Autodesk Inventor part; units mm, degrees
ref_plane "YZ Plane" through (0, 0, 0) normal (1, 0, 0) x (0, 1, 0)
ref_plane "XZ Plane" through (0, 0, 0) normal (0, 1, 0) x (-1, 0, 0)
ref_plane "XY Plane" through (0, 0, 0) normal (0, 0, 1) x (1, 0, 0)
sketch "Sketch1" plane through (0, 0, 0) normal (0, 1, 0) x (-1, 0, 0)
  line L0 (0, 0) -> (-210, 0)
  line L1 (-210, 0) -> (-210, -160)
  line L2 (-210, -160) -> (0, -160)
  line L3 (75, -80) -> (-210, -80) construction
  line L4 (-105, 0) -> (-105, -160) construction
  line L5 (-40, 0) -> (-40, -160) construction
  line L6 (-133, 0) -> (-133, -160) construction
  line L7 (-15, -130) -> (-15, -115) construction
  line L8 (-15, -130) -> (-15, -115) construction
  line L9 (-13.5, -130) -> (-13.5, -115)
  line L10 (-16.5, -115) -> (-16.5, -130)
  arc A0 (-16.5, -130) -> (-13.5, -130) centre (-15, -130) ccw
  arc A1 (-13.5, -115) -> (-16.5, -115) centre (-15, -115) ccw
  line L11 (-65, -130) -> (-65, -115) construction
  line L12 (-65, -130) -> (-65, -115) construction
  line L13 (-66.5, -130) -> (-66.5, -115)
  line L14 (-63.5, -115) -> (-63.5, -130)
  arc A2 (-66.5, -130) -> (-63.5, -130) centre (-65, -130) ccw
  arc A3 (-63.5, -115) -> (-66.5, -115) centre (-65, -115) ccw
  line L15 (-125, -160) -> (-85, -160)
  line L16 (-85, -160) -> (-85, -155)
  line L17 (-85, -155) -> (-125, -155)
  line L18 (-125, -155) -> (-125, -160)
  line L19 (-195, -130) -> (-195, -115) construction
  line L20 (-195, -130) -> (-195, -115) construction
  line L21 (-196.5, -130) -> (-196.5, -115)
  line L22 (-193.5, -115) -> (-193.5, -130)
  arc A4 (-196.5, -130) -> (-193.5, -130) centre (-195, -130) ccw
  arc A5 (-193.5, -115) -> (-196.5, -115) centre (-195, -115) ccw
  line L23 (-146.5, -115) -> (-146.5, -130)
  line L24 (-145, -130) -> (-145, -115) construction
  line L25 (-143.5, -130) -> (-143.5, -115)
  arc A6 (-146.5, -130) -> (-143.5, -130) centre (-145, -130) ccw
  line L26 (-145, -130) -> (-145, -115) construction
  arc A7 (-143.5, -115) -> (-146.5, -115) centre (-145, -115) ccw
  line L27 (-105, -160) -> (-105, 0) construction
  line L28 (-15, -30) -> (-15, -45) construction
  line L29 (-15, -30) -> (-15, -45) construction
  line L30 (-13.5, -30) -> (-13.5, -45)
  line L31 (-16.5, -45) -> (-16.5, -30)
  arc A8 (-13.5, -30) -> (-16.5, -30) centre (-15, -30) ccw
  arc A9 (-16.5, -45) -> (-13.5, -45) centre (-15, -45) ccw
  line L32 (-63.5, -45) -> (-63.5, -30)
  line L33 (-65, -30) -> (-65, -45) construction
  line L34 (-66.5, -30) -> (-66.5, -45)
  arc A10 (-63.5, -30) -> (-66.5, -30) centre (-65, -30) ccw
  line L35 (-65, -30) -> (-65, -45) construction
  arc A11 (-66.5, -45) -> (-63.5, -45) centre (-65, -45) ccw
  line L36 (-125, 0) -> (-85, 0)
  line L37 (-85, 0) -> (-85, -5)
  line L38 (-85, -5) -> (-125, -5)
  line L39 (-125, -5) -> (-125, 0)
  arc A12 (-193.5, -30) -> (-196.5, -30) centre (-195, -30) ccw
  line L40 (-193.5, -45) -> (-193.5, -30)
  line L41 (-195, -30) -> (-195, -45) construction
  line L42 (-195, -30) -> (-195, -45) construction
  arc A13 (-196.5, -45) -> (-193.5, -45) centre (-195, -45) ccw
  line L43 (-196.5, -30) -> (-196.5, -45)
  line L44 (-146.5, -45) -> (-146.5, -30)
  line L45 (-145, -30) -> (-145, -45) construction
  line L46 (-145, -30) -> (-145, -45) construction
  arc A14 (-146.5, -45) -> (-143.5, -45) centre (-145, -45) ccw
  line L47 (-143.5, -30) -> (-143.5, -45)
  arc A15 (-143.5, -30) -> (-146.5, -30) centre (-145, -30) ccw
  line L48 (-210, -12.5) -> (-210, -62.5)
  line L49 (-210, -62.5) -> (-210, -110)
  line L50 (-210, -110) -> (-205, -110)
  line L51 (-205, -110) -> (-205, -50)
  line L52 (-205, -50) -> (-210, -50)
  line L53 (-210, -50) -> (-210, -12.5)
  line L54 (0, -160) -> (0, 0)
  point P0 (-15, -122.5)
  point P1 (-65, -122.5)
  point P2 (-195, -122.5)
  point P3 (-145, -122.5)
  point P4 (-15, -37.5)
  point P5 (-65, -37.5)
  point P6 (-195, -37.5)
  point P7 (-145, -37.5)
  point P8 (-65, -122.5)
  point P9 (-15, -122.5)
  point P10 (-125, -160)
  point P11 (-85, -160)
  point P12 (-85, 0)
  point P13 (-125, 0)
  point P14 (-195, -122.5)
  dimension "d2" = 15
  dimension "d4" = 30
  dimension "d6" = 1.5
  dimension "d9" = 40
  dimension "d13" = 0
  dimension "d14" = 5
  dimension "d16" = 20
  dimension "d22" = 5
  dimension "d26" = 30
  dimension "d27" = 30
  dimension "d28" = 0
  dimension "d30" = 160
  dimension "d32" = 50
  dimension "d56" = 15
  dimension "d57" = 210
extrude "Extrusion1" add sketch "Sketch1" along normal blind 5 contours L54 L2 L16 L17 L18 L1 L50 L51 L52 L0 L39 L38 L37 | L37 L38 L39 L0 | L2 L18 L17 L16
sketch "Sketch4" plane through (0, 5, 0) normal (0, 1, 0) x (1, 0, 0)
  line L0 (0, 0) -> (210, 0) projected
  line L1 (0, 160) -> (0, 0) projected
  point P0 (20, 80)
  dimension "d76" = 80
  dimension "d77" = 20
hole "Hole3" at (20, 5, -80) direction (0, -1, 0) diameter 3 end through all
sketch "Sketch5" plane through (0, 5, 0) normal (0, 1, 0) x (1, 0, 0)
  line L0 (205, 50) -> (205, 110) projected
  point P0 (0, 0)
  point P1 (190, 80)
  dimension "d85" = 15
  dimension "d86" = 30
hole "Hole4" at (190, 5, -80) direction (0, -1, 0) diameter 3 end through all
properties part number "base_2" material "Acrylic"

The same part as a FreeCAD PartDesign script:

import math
import FreeCAD as App
import Part
import Sketcher

V = App.Vector


def add_polygon(sketch, points):
    """Adds a closed chain of lines whose ends are joined by coincident constraints."""
    first, n = sketch.GeometryCount, len(points)
    for a, b in zip(points, points[1:] + points[:1]):
        sketch.addGeometry(Part.LineSegment(App.Vector(*a, 0), App.Vector(*b, 0)), False)
    for i in range(n):
        sketch.addConstraint(Sketcher.Constraint("Coincident", first + i, 2, first + (i + 1) % n, 1))

doc = App.newDocument("Part")
body = doc.addObject("PartDesign::Body", "Body")

sketch1 = doc.addObject("Sketcher::SketchObject", "Sketch")
body.addObject(sketch1)
sketch1.AttachmentSupport = (doc.XZ_Plane, [""])
sketch1.MapMode = "FlatFace"
add_polygon(sketch1, [(0, -160), (0, 0), (210, 0), (210, -50), (205, -50), (205, -110), (210, -110), (210, -160)])
sketch1.addGeometry(Part.ArcOfCircle(Part.Circle(V(195, -130, 0), V(0, 0, 1), 1.5), math.radians(180), math.radians(360)), False)
sketch1.addGeometry(Part.LineSegment(V(196.5, -130, 0), V(196.5, -115, 0)), False)
sketch1.addGeometry(Part.ArcOfCircle(Part.Circle(V(195, -115, 0), V(0, 0, 1), 1.5), math.radians(0), math.radians(180)), False)
sketch1.addGeometry(Part.LineSegment(V(193.5, -115, 0), V(193.5, -130, 0)), False)
sketch1.addGeometry(Part.LineSegment(V(146.5, -130, 0), V(146.5, -115, 0)), False)
sketch1.addGeometry(Part.ArcOfCircle(Part.Circle(V(145, -115, 0), V(0, 0, 1), 1.5), math.radians(0), math.radians(180)), False)
sketch1.addGeometry(Part.LineSegment(V(143.5, -115, 0), V(143.5, -130, 0)), False)
sketch1.addGeometry(Part.ArcOfCircle(Part.Circle(V(145, -130, 0), V(0, 0, 1), 1.5), math.radians(180), math.radians(360)), False)
sketch1.addGeometry(Part.ArcOfCircle(Part.Circle(V(65, -130, 0), V(0, 0, 1), 1.5), math.radians(180), math.radians(360)), False)
sketch1.addGeometry(Part.LineSegment(V(66.5, -130, 0), V(66.5, -115, 0)), False)
sketch1.addGeometry(Part.ArcOfCircle(Part.Circle(V(65, -115, 0), V(0, 0, 1), 1.5), math.radians(0), math.radians(180)), False)
sketch1.addGeometry(Part.LineSegment(V(63.5, -115, 0), V(63.5, -130, 0)), False)
sketch1.addGeometry(Part.LineSegment(V(13.5, -115, 0), V(13.5, -130, 0)), False)
sketch1.addGeometry(Part.ArcOfCircle(Part.Circle(V(15, -130, 0), V(0, 0, 1), 1.5), math.radians(180), math.radians(360)), False)
sketch1.addGeometry(Part.LineSegment(V(16.5, -130, 0), V(16.5, -115, 0)), False)
sketch1.addGeometry(Part.ArcOfCircle(Part.Circle(V(15, -115, 0), V(0, 0, 1), 1.5), math.radians(0), math.radians(180)), False)
sketch1.addGeometry(Part.ArcOfCircle(Part.Circle(V(195, -30, 0), V(0, 0, 1), 1.5), math.radians(0), math.radians(180)), False)
sketch1.addGeometry(Part.LineSegment(V(193.5, -30, 0), V(193.5, -45, 0)), False)
sketch1.addGeometry(Part.ArcOfCircle(Part.Circle(V(195, -45, 0), V(0, 0, 1), 1.5), math.radians(180), math.radians(360)), False)
sketch1.addGeometry(Part.LineSegment(V(196.5, -45, 0), V(196.5, -30, 0)), False)
sketch1.addGeometry(Part.ArcOfCircle(Part.Circle(V(145, -45, 0), V(0, 0, 1), 1.5), math.radians(180), math.radians(360)), False)
sketch1.addGeometry(Part.LineSegment(V(146.5, -45, 0), V(146.5, -30, 0)), False)
sketch1.addGeometry(Part.ArcOfCircle(Part.Circle(V(145, -30, 0), V(0, 0, 1), 1.5), math.radians(0), math.radians(180)), False)
sketch1.addGeometry(Part.LineSegment(V(143.5, -30, 0), V(143.5, -45, 0)), False)
sketch1.addGeometry(Part.LineSegment(V(63.5, -30, 0), V(63.5, -45, 0)), False)
sketch1.addGeometry(Part.ArcOfCircle(Part.Circle(V(65, -45, 0), V(0, 0, 1), 1.5), math.radians(180), math.radians(360)), False)
sketch1.addGeometry(Part.LineSegment(V(66.5, -45, 0), V(66.5, -30, 0)), False)
sketch1.addGeometry(Part.ArcOfCircle(Part.Circle(V(65, -30, 0), V(0, 0, 1), 1.5), math.radians(0), math.radians(180)), False)
sketch1.addGeometry(Part.ArcOfCircle(Part.Circle(V(15, -30, 0), V(0, 0, 1), 1.5), math.radians(0), math.radians(180)), False)
sketch1.addGeometry(Part.LineSegment(V(13.5, -30, 0), V(13.5, -45, 0)), False)
sketch1.addGeometry(Part.ArcOfCircle(Part.Circle(V(15, -45, 0), V(0, 0, 1), 1.5), math.radians(180), math.radians(360)), False)
sketch1.addGeometry(Part.LineSegment(V(16.5, -45, 0), V(16.5, -30, 0)), False)
sketch1.addConstraint(Sketcher.Constraint("Tangent", 8, 2, 9, 1))
sketch1.addConstraint(Sketcher.Constraint("Tangent", 9, 2, 10, 1))
sketch1.addConstraint(Sketcher.Constraint("Tangent", 10, 2, 11, 1))
sketch1.addConstraint(Sketcher.Constraint("Tangent", 11, 2, 8, 1))
sketch1.addConstraint(Sketcher.Constraint("Tangent", 12, 2, 13, 1))
sketch1.addConstraint(Sketcher.Constraint("Tangent", 13, 2, 14, 1))
sketch1.addConstraint(Sketcher.Constraint("Tangent", 14, 2, 15, 1))
sketch1.addConstraint(Sketcher.Constraint("Tangent", 15, 2, 12, 1))
sketch1.addConstraint(Sketcher.Constraint("Tangent", 16, 2, 17, 1))
sketch1.addConstraint(Sketcher.Constraint("Tangent", 17, 2, 18, 1))
sketch1.addConstraint(Sketcher.Constraint("Tangent", 18, 2, 19, 1))
sketch1.addConstraint(Sketcher.Constraint("Tangent", 19, 2, 16, 1))
sketch1.addConstraint(Sketcher.Constraint("Tangent", 20, 2, 21, 1))
sketch1.addConstraint(Sketcher.Constraint("Tangent", 21, 2, 22, 1))
sketch1.addConstraint(Sketcher.Constraint("Tangent", 22, 2, 23, 1))
sketch1.addConstraint(Sketcher.Constraint("Tangent", 23, 2, 20, 1))
sketch1.addConstraint(Sketcher.Constraint("Tangent", 24, 2, 25, 1))
sketch1.addConstraint(Sketcher.Constraint("Tangent", 25, 2, 26, 1))
sketch1.addConstraint(Sketcher.Constraint("Tangent", 26, 2, 27, 1))
sketch1.addConstraint(Sketcher.Constraint("Tangent", 27, 2, 24, 1))
sketch1.addConstraint(Sketcher.Constraint("Tangent", 28, 2, 29, 1))
sketch1.addConstraint(Sketcher.Constraint("Tangent", 29, 2, 30, 1))
sketch1.addConstraint(Sketcher.Constraint("Tangent", 30, 2, 31, 1))
sketch1.addConstraint(Sketcher.Constraint("Tangent", 31, 2, 28, 1))
sketch1.addConstraint(Sketcher.Constraint("Tangent", 32, 2, 33, 1))
sketch1.addConstraint(Sketcher.Constraint("Tangent", 33, 2, 34, 1))
sketch1.addConstraint(Sketcher.Constraint("Tangent", 34, 2, 35, 1))
sketch1.addConstraint(Sketcher.Constraint("Tangent", 35, 2, 32, 1))
sketch1.addConstraint(Sketcher.Constraint("Tangent", 36, 2, 37, 1))
sketch1.addConstraint(Sketcher.Constraint("Tangent", 37, 2, 38, 1))
sketch1.addConstraint(Sketcher.Constraint("Tangent", 38, 2, 39, 1))
sketch1.addConstraint(Sketcher.Constraint("Tangent", 39, 2, 36, 1))
sketch1.addConstraint(Sketcher.Constraint("Vertical", 0))
sketch1.addConstraint(Sketcher.Constraint("Horizontal", 1))
sketch1.addConstraint(Sketcher.Constraint("Vertical", 2))
sketch1.addConstraint(Sketcher.Constraint("Horizontal", 3))
sketch1.addConstraint(Sketcher.Constraint("Vertical", 4))
sketch1.addConstraint(Sketcher.Constraint("Horizontal", 5))
sketch1.addConstraint(Sketcher.Constraint("Vertical", 6))
sketch1.addConstraint(Sketcher.Constraint("Horizontal", 7))
sketch1.addConstraint(Sketcher.Constraint("Vertical", 9))
sketch1.addConstraint(Sketcher.Constraint("Vertical", 11))
sketch1.addConstraint(Sketcher.Constraint("Vertical", 12))
sketch1.addConstraint(Sketcher.Constraint("Vertical", 14))
sketch1.addConstraint(Sketcher.Constraint("Vertical", 17))
sketch1.addConstraint(Sketcher.Constraint("Vertical", 19))
sketch1.addConstraint(Sketcher.Constraint("Vertical", 20))
sketch1.addConstraint(Sketcher.Constraint("Vertical", 22))
sketch1.addConstraint(Sketcher.Constraint("Vertical", 25))
sketch1.addConstraint(Sketcher.Constraint("Vertical", 27))
sketch1.addConstraint(Sketcher.Constraint("Vertical", 29))
sketch1.addConstraint(Sketcher.Constraint("Vertical", 31))
sketch1.addConstraint(Sketcher.Constraint("Vertical", 32))
sketch1.addConstraint(Sketcher.Constraint("Vertical", 34))
sketch1.addConstraint(Sketcher.Constraint("Vertical", 37))
sketch1.addConstraint(Sketcher.Constraint("Vertical", 39))
sketch1.addConstraint(Sketcher.Constraint("Coincident", 0, 2, -1, 1))
sketch1.addConstraint(Sketcher.Constraint("Equal", 10, 13))
sketch1.addConstraint(Sketcher.Constraint("Equal", 15, 16))
sketch1.addConstraint(Sketcher.Constraint("Equal", 18, 21))
sketch1.addConstraint(Sketcher.Constraint("Equal", 23, 24))
sketch1.addConstraint(Sketcher.Constraint("Equal", 26, 28))
sketch1.addConstraint(Sketcher.Constraint("Equal", 30, 33))
sketch1.addConstraint(Sketcher.Constraint("Equal", 35, 36))
sketch1.addConstraint(Sketcher.Constraint("Horizontal", 10, 3, 13, 3))
sketch1.addConstraint(Sketcher.Constraint("Horizontal", 8, 3, 15, 3))
sketch1.addConstraint(Sketcher.Constraint("Horizontal", 15, 3, 16, 3))
sketch1.addConstraint(Sketcher.Constraint("Horizontal", 13, 3, 18, 3))
sketch1.addConstraint(Sketcher.Constraint("Horizontal", 16, 3, 21, 3))
sketch1.addConstraint(Sketcher.Constraint("Horizontal", 18, 3, 23, 3))
sketch1.addConstraint(Sketcher.Constraint("Horizontal", 26, 3, 28, 3))
sketch1.addConstraint(Sketcher.Constraint("Horizontal", 24, 3, 30, 3))
sketch1.addConstraint(Sketcher.Constraint("Horizontal", 28, 3, 33, 3))
sketch1.addConstraint(Sketcher.Constraint("Horizontal", 30, 3, 35, 3))
sketch1.addConstraint(Sketcher.Constraint("Horizontal", 35, 3, 36, 3))
sketch1.addConstraint(Sketcher.Constraint("Horizontal", 33, 3, 38, 3))
sketch1.addConstraint(Sketcher.Constraint("Vertical", 10, 3, 24, 3))
sketch1.addConstraint(Sketcher.Constraint("Vertical", 15, 3, 28, 3))
sketch1.addConstraint(Sketcher.Constraint("Vertical", 18, 3, 33, 3))
sketch1.addConstraint(Sketcher.Constraint("Vertical", 23, 3, 36, 3))
sketch1.addConstraint(Sketcher.Constraint("Vertical", 2, 2, 5, 2))
sketch1.addConstraint(Sketcher.Constraint("Equal", 2, 6))
sketch1.addConstraint(Sketcher.Constraint("Equal", 22, 25))
sketch1.addConstraint(Sketcher.Constraint("Radius", 8, 1.5))
sketch1.addConstraint(Sketcher.Constraint("DistanceX", 1, 1, 1, 2, 210.0))
sketch1.addConstraint(Sketcher.Constraint("DistanceX", 3, 2, 3, 1, 5.0))
sketch1.addConstraint(Sketcher.Constraint("DistanceY", 0, 1, 0, 2, 160.0))
sketch1.addConstraint(Sketcher.Constraint("DistanceY", 2, 2, 2, 1, 50.0))
sketch1.addConstraint(Sketcher.Constraint("DistanceY", 9, 1, 9, 2, 15.0))
sketch1.addConstraint(Sketcher.Constraint("DistanceX", -1, 1, 21, 3, 15.0))
sketch1.addConstraint(Sketcher.Constraint("DistanceY", 24, 3, -1, 1, 30.0))
sketch1.addConstraint(Sketcher.Constraint("DistanceX", 13, 3, 10, 3, 50.0))
sketch1.addConstraint(Sketcher.Constraint("DistanceX", 21, 3, 16, 3, 50.0))
sketch1.addConstraint(Sketcher.Constraint("DistanceX", 24, 3, 1, 2, 15.0))
sketch1.addConstraint(Sketcher.Constraint("DistanceY", 10, 3, 4, 2, 5.0))
pad1 = doc.addObject("PartDesign::Pad", "Pad")
body.addObject(pad1)
pad1.Profile = sketch1
pad1.Length = 5
pad1.Reversed = True

sketch2 = doc.addObject("Sketcher::SketchObject", "Sketch001")
body.addObject(sketch2)
sketch2.AttachmentSupport = (doc.XZ_Plane, [""])
sketch2.MapMode = "FlatFace"
sketch2.AttachmentOffset = App.Placement(V(0, 0, -5), App.Rotation())
sketch2.addGeometry(Part.Circle(V(20, -80, 0), V(0, 0, 1), 1.5), False)
sketch2.addConstraint(Sketcher.Constraint("Diameter", 0, 3.0))
sketch2.addConstraint(Sketcher.Constraint("DistanceX", -1, 1, 0, 3, 20.0))
sketch2.addConstraint(Sketcher.Constraint("DistanceY", 0, 3, -1, 1, 80.0))
doc.recompute()
hole = doc.addObject("PartDesign::Hole", "Hole")
body.addObject(hole)
hole.Profile = sketch2
hole.ThreadType = "None"
hole.Diameter = 3
hole.DepthType = "ThroughAll"
hole.Reversed = True

sketch3 = doc.addObject("Sketcher::SketchObject", "Sketch002")
body.addObject(sketch3)
sketch3.AttachmentSupport = (doc.XZ_Plane, [""])
sketch3.MapMode = "FlatFace"
sketch3.AttachmentOffset = App.Placement(V(0, 0, -5), App.Rotation())
sketch3.addGeometry(Part.Circle(V(190, -80, 0), V(0, 0, 1), 1.5), False)
sketch3.addConstraint(Sketcher.Constraint("Diameter", 0, 3.0))
sketch3.addConstraint(Sketcher.Constraint("DistanceX", -1, 1, 0, 3, 190.0))
sketch3.addConstraint(Sketcher.Constraint("DistanceY", 0, 3, -1, 1, 80.0))
doc.recompute()
hole2 = doc.addObject("PartDesign::Hole", "Hole001")
body.addObject(hole2)
hole2.Profile = sketch3
hole2.ThreadType = "None"
hole2.Diameter = 3
hole2.DepthType = "ThroughAll"
hole2.Reversed = True

doc.recompute()
